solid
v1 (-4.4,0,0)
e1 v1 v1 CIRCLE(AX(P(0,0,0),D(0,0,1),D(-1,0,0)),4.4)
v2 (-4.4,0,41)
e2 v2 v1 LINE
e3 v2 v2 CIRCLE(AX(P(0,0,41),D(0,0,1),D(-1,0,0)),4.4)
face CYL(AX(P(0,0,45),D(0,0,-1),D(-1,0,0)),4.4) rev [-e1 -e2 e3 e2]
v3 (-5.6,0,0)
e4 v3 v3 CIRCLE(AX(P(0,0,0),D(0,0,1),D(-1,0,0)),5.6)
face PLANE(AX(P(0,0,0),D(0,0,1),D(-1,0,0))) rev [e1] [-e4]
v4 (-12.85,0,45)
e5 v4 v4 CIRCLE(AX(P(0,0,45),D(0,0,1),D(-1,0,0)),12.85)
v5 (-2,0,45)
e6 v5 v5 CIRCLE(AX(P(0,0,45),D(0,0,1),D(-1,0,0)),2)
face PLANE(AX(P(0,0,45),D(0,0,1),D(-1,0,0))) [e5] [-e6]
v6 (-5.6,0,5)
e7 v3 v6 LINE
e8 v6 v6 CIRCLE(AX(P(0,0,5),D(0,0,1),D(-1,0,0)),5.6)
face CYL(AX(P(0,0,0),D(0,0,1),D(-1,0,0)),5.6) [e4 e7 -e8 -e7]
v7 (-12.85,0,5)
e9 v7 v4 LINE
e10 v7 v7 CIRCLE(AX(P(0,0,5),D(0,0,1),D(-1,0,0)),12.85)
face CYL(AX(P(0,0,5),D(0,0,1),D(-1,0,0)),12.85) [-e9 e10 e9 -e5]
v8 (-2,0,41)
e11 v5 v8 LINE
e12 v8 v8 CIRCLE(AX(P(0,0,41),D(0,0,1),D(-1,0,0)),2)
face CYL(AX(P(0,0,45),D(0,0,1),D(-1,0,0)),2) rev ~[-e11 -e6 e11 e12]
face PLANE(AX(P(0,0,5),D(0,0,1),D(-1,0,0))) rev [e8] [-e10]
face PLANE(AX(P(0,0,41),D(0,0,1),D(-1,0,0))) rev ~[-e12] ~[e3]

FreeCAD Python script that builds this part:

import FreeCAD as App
import Part
import Sketcher
Q = App.Units.Quantity

doc = App.newDocument("Part")
body = doc.addObject("PartDesign::Body", "Body")

# Sketch on XZ plane
sketch1 = doc.addObject("Sketcher::SketchObject", "Sketch")
body.addObject(sketch1)
sketch1.AttachmentSupport = (doc.XZ_Plane, [""])
sketch1.MapMode = "FlatFace"
sketch1.addGeometry(Part.LineSegment(App.Vector(-5.6, 0, 0), App.Vector(-4.4, 0, 0)), False)
sketch1.addGeometry(Part.LineSegment(App.Vector(-4.4, 0, 0), App.Vector(-4.4, 45, 0)), False)
sketch1.addGeometry(Part.LineSegment(App.Vector(-4.4, 45, 0), App.Vector(-12.8, 45, 0)), False)
sketch1.addGeometry(Part.LineSegment(App.Vector(-12.8, 45, 0), App.Vector(-12.8, 5, 0)), False)
sketch1.addGeometry(Part.LineSegment(App.Vector(-12.8, 5, 0), App.Vector(-5.6, 5, 0)), False)
sketch1.addGeometry(Part.LineSegment(App.Vector(-5.6, 5, 0), App.Vector(-5.6, 0, 0)), False)
sketch1.addConstraint(Sketcher.Constraint("Coincident", 0, 2, 1, 1))
sketch1.addConstraint(Sketcher.Constraint("Coincident", 1, 2, 2, 1))
sketch1.addConstraint(Sketcher.Constraint("Coincident", 2, 2, 3, 1))
sketch1.addConstraint(Sketcher.Constraint("Coincident", 3, 2, 4, 1))
sketch1.addConstraint(Sketcher.Constraint("Coincident", 4, 2, 5, 1))
sketch1.addConstraint(Sketcher.Constraint("Coincident", 5, 2, 0, 1))
sketch1.addConstraint(Sketcher.Constraint("Horizontal", 0))
sketch1.addConstraint(Sketcher.Constraint("Vertical", 1))
sketch1.addConstraint(Sketcher.Constraint("Horizontal", 2))
sketch1.addConstraint(Sketcher.Constraint("Vertical", 3))
sketch1.addConstraint(Sketcher.Constraint("Horizontal", 4))
sketch1.addConstraint(Sketcher.Constraint("Vertical", 5))
sketch1.addConstraint(Sketcher.Constraint("PointOnObject", 0, 2, -1))
sketch1.addConstraint(Sketcher.Constraint("DistanceY", 1, 1, 1, 2, Q("45 mm")))
sketch1.addConstraint(Sketcher.Constraint("DistanceY", 3, 2, 3, 1, Q("40 mm")))
sketch1.addConstraint(Sketcher.Constraint("DistanceX", 0, 1, 0, 2, Q("1.2 mm")))
sketch1.addConstraint(Sketcher.Constraint("DistanceX", 2, 2, 2, 1, Q("8.45 mm")))
sketch1.addConstraint(Sketcher.Constraint("DistanceX", 0, 2, -1, 1, Q("4.4 mm")))
revolution = doc.addObject("PartDesign::Revolution", "Revolution")
body.addObject(revolution)
revolution.Profile = sketch1
revolution.ReferenceAxis = (sketch1, ["V_Axis"])
revolution.Angle = 360

# Sketch on XY plane
sketch2 = doc.addObject("Sketcher::SketchObject", "Sketch001")
body.addObject(sketch2)
sketch2.AttachmentSupport = (doc.XY_Plane, [""])
sketch2.MapMode = "FlatFace"
sketch2.AttachmentOffset = App.Placement(App.Vector(0, 0, 45), App.Rotation())
sketch2.addGeometry(Part.Circle(App.Vector(0, 0, 0), App.Vector(0, 0, 1), 4.4), False)
sketch2.addGeometry(Part.Circle(App.Vector(0, 0, 0), App.Vector(0, 0, 1), 2), False)
sketch2.addConstraint(Sketcher.Constraint("Coincident", 0, 3, -1, 1))
sketch2.addConstraint(Sketcher.Constraint("Coincident", 1, 3, -1, 1))
sketch2.addConstraint(Sketcher.Constraint("Diameter", 1, Q("4 mm")))
sketch2.addConstraint(Sketcher.Constraint("Diameter", 0, Q("8.8 mm")))
pad1 = doc.addObject("PartDesign::Pad", "Pad")
body.addObject(pad1)
pad1.Profile = sketch2
pad1.Length = 4
pad1.Reversed = True

doc.recompute()
